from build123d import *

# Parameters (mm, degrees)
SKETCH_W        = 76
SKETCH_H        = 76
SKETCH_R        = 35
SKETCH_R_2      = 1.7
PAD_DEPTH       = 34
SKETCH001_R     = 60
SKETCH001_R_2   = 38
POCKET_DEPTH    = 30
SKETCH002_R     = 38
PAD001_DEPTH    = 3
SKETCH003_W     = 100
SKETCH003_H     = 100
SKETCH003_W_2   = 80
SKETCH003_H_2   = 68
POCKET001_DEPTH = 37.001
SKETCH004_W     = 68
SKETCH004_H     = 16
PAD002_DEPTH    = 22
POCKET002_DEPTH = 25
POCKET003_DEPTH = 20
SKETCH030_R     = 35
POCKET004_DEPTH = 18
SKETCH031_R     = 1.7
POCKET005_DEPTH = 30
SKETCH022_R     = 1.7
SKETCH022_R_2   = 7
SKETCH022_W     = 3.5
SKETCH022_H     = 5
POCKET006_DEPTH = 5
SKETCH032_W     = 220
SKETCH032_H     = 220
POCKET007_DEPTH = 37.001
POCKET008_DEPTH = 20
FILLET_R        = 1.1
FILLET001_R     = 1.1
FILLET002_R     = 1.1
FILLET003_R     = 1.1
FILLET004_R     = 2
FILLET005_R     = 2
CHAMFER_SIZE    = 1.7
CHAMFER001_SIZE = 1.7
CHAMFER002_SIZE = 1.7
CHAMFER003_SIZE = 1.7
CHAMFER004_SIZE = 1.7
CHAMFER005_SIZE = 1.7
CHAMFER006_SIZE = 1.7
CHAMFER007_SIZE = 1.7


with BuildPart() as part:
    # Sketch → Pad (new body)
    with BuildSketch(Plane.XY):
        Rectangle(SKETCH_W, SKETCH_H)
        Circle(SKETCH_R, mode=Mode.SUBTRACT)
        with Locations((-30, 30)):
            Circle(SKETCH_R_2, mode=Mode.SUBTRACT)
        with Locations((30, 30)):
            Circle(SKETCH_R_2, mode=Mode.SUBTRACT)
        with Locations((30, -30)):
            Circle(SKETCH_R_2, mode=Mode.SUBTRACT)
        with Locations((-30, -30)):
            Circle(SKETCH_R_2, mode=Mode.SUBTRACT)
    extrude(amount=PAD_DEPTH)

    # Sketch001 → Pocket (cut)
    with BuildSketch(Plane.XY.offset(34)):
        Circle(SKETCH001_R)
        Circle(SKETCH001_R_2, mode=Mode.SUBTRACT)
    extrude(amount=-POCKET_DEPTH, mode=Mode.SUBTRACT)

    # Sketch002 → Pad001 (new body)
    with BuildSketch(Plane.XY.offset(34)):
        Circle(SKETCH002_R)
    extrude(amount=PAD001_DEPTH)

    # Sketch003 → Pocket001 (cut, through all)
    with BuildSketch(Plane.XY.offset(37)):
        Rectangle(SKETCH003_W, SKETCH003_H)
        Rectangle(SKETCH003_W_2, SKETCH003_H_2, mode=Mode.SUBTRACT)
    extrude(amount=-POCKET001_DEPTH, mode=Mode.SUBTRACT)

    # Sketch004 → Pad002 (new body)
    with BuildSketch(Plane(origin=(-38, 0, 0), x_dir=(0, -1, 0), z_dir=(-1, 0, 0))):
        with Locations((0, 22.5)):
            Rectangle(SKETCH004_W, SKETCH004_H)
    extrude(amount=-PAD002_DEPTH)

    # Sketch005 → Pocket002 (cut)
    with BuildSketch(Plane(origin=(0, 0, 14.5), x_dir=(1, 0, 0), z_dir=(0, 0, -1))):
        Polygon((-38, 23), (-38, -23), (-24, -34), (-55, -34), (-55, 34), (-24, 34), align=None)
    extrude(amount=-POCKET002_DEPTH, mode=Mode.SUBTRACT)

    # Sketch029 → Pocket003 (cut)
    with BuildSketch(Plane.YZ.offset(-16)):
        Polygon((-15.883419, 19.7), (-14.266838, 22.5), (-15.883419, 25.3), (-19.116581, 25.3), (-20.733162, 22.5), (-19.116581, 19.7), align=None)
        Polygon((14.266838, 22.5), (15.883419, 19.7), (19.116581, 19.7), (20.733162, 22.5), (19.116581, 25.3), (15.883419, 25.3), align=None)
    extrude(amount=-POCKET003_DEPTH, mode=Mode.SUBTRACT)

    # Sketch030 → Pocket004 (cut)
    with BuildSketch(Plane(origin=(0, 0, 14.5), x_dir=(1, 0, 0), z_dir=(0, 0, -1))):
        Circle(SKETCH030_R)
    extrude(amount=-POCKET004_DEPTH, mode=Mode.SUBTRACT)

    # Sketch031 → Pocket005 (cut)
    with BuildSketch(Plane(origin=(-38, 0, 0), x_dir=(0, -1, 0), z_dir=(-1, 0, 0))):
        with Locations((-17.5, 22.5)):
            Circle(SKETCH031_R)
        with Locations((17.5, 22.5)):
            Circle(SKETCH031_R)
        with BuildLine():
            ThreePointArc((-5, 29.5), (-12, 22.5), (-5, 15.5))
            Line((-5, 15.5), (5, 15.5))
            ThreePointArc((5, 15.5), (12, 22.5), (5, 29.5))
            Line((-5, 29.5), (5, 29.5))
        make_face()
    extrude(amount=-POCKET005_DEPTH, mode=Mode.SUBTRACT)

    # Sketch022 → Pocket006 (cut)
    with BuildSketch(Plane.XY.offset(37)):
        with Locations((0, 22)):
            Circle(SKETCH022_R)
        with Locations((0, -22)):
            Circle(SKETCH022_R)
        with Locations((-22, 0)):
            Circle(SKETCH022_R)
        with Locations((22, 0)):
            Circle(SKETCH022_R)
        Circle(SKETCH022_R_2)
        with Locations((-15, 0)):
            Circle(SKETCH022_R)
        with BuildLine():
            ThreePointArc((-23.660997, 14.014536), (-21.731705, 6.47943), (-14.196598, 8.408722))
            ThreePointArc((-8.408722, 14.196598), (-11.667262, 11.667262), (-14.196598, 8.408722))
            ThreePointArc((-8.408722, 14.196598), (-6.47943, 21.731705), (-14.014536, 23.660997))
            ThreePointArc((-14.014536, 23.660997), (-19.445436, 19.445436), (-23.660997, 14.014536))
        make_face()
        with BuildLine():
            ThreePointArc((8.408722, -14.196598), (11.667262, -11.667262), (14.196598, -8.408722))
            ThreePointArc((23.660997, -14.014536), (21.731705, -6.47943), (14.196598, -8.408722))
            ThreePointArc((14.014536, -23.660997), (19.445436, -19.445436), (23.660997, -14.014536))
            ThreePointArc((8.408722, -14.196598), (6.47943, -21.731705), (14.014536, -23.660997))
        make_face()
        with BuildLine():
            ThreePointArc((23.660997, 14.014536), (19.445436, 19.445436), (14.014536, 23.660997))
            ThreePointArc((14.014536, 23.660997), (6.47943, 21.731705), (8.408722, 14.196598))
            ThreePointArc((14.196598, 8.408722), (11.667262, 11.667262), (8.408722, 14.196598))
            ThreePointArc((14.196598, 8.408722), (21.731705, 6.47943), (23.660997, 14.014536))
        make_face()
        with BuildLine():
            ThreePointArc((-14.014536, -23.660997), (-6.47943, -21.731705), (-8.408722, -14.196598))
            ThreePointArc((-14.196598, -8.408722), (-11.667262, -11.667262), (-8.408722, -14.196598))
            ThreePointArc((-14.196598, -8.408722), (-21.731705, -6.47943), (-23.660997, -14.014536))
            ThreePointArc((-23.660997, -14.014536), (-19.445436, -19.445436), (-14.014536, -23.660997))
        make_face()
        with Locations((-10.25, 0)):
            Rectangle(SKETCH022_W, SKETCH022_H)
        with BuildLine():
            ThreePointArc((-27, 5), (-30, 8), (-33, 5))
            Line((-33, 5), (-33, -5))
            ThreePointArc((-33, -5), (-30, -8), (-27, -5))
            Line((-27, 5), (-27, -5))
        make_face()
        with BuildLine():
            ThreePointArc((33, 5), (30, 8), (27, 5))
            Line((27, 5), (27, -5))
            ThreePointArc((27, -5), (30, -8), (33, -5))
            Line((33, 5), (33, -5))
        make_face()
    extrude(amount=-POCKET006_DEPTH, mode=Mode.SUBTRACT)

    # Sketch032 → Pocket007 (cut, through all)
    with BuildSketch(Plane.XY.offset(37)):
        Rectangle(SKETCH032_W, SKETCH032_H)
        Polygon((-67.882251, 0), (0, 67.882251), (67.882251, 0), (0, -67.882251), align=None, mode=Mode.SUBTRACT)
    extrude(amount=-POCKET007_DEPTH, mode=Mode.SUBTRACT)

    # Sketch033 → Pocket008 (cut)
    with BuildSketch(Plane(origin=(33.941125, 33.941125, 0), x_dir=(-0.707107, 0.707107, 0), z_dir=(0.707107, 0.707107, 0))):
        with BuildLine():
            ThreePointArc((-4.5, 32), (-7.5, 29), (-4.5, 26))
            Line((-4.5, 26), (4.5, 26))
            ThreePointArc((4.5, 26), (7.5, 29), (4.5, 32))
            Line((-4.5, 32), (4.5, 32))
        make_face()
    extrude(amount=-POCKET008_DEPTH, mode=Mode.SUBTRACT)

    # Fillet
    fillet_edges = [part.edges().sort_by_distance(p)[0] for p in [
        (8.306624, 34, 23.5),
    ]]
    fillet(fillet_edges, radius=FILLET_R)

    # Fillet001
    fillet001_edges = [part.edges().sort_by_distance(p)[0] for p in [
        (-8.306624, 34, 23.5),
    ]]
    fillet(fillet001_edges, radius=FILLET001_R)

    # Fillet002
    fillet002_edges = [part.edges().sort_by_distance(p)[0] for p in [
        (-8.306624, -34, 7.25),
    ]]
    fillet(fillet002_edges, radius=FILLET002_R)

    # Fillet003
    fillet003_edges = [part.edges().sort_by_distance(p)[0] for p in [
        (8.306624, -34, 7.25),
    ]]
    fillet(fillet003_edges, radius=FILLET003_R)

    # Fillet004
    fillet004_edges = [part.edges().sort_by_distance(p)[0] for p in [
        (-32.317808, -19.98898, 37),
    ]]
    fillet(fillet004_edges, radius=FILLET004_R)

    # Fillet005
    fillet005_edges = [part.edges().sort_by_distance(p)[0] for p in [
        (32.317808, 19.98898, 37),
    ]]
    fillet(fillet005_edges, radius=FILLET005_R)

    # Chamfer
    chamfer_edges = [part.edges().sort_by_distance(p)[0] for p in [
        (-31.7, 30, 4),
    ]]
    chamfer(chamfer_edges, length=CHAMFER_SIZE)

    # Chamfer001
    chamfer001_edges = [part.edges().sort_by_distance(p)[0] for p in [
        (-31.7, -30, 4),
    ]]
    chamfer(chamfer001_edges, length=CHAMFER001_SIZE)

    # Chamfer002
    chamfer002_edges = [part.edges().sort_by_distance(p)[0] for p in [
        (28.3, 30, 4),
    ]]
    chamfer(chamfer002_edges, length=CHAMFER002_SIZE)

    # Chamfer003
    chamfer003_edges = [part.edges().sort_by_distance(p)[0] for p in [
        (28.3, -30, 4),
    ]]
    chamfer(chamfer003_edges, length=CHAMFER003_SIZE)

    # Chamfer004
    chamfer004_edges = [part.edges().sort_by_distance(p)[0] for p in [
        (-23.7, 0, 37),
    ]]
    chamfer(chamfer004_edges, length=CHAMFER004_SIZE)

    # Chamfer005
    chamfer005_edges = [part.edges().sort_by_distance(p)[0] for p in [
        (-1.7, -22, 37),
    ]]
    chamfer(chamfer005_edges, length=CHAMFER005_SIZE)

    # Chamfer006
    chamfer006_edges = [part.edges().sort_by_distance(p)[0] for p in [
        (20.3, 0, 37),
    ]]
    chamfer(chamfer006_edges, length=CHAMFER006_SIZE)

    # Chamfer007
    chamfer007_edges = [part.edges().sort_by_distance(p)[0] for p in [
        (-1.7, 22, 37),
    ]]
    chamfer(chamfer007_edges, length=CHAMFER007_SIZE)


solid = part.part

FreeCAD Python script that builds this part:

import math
import FreeCAD as App
import Part
import Sketcher
from FreeCAD import Vector
Q = App.Units.Quantity


def edges_at(feature, points):
    """Names of the edges that pass closest to the given points."""
    edges = feature.Shape.Edges
    near = lambda p: min(range(len(edges)), key=lambda i: edges[i].distToShape(Part.Vertex(*p))[0])
    return sorted({f"Edge{near(p) + 1}" for p in points})

doc = App.newDocument("Part")
params = doc.addObject("Spreadsheet::Sheet", "Params")
for row, (alias, value) in enumerate([
    ("sketch1_diameter", "70 mm"),
    ("sketch1_diameter2", "3.4 mm"),
    ("sketch1_width", "76 mm"),
    ("pad1_length", "34 mm"),
    ("sketch2_diameter", "120 mm"),
    ("sketch2_diameter2", "76 mm"),
    ("pocket1_length", "30 mm"),
    ("sketch3_diameter", "76 mm"),
    ("pad2_length", "3 mm"),
    ("sketch4_width", "100 mm"),
    ("sketch4_width2", "80 mm"),
    ("sketch4_height", "68 mm"),
    ("sketch5_width", "68 mm"),
    ("sketch5_height", "16 mm"),
    ("pad3_length", "22 mm"),
    ("sketch6_width", "31 mm"),
    ("sketch6_height", "46 mm"),
    ("sketch6_height2", "68 mm"),
    ("pocket3_length", "25 mm"),
    ("pocket4_length", "20 mm"),
    ("sketch8_diameter", "70 mm"),
    ("pocket5_length", "18 mm"),
    ("sketch9_radius", "7 mm"),
    ("sketch9_diameter", "3.4 mm"),
    ("sketch9_width", "10 mm"),
    ("pocket6_length", "30 mm"),
    ("sketch10_diameter", "14 mm"),
    ("sketch10_radius", "3 mm"),
    ("sketch10_diameter2", "3.4 mm"),
    ("sketch10_radius2", "5.5 mm"),
    ("sketch10_height", "5 mm"),
    ("pocket7_length", "5 mm"),
    ("sketch11_width", "220 mm"),
    ("sketch11_length", "96 mm"),
    ("sketch12_radius", "3 mm"),
    ("sketch12_width", "9 mm"),
    ("pocket9_length", "20 mm"),
    ("fillet_radius", "1.1 mm"),
    ("fillet2_radius", "1.1 mm"),
    ("fillet3_radius", "1.1 mm"),
    ("fillet4_radius", "1.1 mm"),
    ("fillet5_radius", "2 mm"),
    ("fillet6_radius", "2 mm"),
    ("chamfer_size", "1.7 mm"),
    ("chamfer2_size", "1.7 mm"),
    ("chamfer3_size", "1.7 mm"),
    ("chamfer4_size", "1.7 mm"),
    ("chamfer5_size", "1.7 mm"),
    ("chamfer6_size", "1.7 mm"),
    ("chamfer7_size", "1.7 mm"),
    ("chamfer8_size", "1.7 mm"),
], start=1):
    params.set(f"A{row}", alias)
    params.set(f"B{row}", "=" + value)
    params.setAlias(f"B{row}", alias)

body = doc.addObject("PartDesign::Body", "Body")

sketch1 = doc.addObject("Sketcher::SketchObject", "Sketch")
body.addObject(sketch1)
sketch1.AttachmentSupport = (doc.XY_Plane, [""])
sketch1.MapMode = "FlatFace"
sketch1.addGeometry([
    Part.LineSegment(Vector(-38, 38, 0), Vector(-38, -38, 0)),
    Part.LineSegment(Vector(-38, -38, 0), Vector(38, -38, 0)),
    Part.LineSegment(Vector(38, -38, 0), Vector(38, 38, 0)),
    Part.LineSegment(Vector(38, 38, 0), Vector(-38, 38, 0)),
    Part.Circle(Vector(-30, -30, 0), Vector(0, 0, 1), 1.7),
    Part.Circle(Vector(30, -30, 0), Vector(0, 0, 1), 1.7),
    Part.Circle(Vector(-30, 30, 0), Vector(0, 0, 1), 1.7),
    Part.Circle(Vector(0, 0, 0), Vector(0, 0, 1), 35),
    Part.Circle(Vector(30, 30, 0), Vector(0, 0, 1), 1.7),
], False)
sketch1.addConstraint([
    Sketcher.Constraint("Coincident", 0, 2, 1, 1),
    Sketcher.Constraint("Coincident", 1, 2, 2, 1),
    Sketcher.Constraint("Coincident", 2, 2, 3, 1),
    Sketcher.Constraint("Coincident", 3, 2, 0, 1),
    Sketcher.Constraint("Vertical", 0),
    Sketcher.Constraint("Horizontal", 1),
    Sketcher.Constraint("Vertical", 2),
    Sketcher.Constraint("Horizontal", 3),
    Sketcher.Constraint("Coincident", 7, 3, -1, 1),
    Sketcher.Constraint("Equal", 4, 5),
    Sketcher.Constraint("Equal", 5, 6),
    Sketcher.Constraint("Equal", 6, 8),
    Sketcher.Constraint("Symmetric", 5, 3, 6, 3, -1, 1),
    Sketcher.Constraint("Symmetric", 4, 3, 8, 3, -1, 1),
    Sketcher.Constraint("Symmetric", 0, 2, 2, 2, -1, 1),
    Sketcher.Constraint("Symmetric", 4, 3, 5, 3, -2),
    Sketcher.Constraint("Equal", 3, 0),
    Sketcher.Constraint("Diameter", 7, Q("70 mm")),
    Sketcher.Constraint("Diameter", 4, Q("3.4 mm")),
    Sketcher.Constraint("DistanceX", 1, 1, 1, 2, Q("76 mm")),
    Sketcher.Constraint("DistanceX", 4, 3, -1, 1, Q("30 mm")),
    Sketcher.Constraint("DistanceY", 4, 3, -1, 1, Q("30 mm")),
])
sketch1.setExpression("Constraints[17]", "Params.sketch1_diameter")
sketch1.setExpression("Constraints[18]", "Params.sketch1_diameter2")
sketch1.setExpression("Constraints[19]", "Params.sketch1_width")
pad1 = doc.addObject("PartDesign::Pad", "Pad")
body.addObject(pad1)
pad1.Profile = sketch1
pad1.setExpression("Length", "Params.pad1_length")

sketch2 = doc.addObject("Sketcher::SketchObject", "Sketch001")
body.addObject(sketch2)
sketch2.AttachmentSupport = (doc.XY_Plane, [""])
sketch2.MapMode = "FlatFace"
sketch2.AttachmentOffset = App.Placement(Vector(0, 0, 34), App.Rotation())
sketch2.addGeometry([
    Part.Circle(Vector(0, 0, 0), Vector(0, 0, 1), 60),
    Part.Circle(Vector(0, 0, 0), Vector(0, 0, 1), 38),
], False)
sketch2.addConstraint([
    Sketcher.Constraint("Coincident", 0, 3, -1, 1),
    Sketcher.Constraint("Coincident", 1, 3, -1, 1),
    Sketcher.Constraint("Diameter", 0, Q("120 mm")),
    Sketcher.Constraint("Diameter", 1, Q("76 mm")),
])
sketch2.setExpression("Constraints[2]", "Params.sketch2_diameter")
sketch2.setExpression("Constraints[3]", "Params.sketch2_diameter2")
pocket1 = doc.addObject("PartDesign::Pocket", "Pocket")
body.addObject(pocket1)
pocket1.Profile = sketch2
pocket1.setExpression("Length", "Params.pocket1_length")

sketch3 = doc.addObject("Sketcher::SketchObject", "Sketch002")
body.addObject(sketch3)
sketch3.AttachmentSupport = (doc.XY_Plane, [""])
sketch3.MapMode = "FlatFace"
sketch3.AttachmentOffset = App.Placement(Vector(0, 0, 34), App.Rotation())
sketch3.addGeometry(Part.Circle(Vector(0, 0, 0), Vector(0, 0, 1), 38), False)
sketch3.addConstraint([
    Sketcher.Constraint("Coincident", 0, 3, -1, 1),
    Sketcher.Constraint("Diameter", 0, Q("76 mm")),
])
sketch3.setExpression("Constraints[1]", "Params.sketch3_diameter")
pad2 = doc.addObject("PartDesign::Pad", "Pad001")
body.addObject(pad2)
pad2.Profile = sketch3
pad2.setExpression("Length", "Params.pad2_length")

sketch4 = doc.addObject("Sketcher::SketchObject", "Sketch003")
body.addObject(sketch4)
sketch4.AttachmentSupport = (doc.XY_Plane, [""])
sketch4.MapMode = "FlatFace"
sketch4.AttachmentOffset = App.Placement(Vector(0, 0, 37), App.Rotation())
sketch4.addGeometry([
    Part.LineSegment(Vector(-50, 50, 0), Vector(-50, -50, 0)),
    Part.LineSegment(Vector(-50, -50, 0), Vector(50, -50, 0)),
    Part.LineSegment(Vector(50, -50, 0), Vector(50, 50, 0)),
    Part.LineSegment(Vector(50, 50, 0), Vector(-50, 50, 0)),
    Part.LineSegment(Vector(40, -34, 0), Vector(-40, -34, 0)),
    Part.LineSegment(Vector(-40, -34, 0), Vector(-40, 34, 0)),
    Part.LineSegment(Vector(-40, 34, 0), Vector(40, 34, 0)),
    Part.LineSegment(Vector(40, 34, 0), Vector(40, -34, 0)),
], False)
sketch4.addConstraint([
    Sketcher.Constraint("Coincident", 0, 2, 1, 1),
    Sketcher.Constraint("Coincident", 1, 2, 2, 1),
    Sketcher.Constraint("Coincident", 2, 2, 3, 1),
    Sketcher.Constraint("Coincident", 3, 2, 0, 1),
    Sketcher.Constraint("Coincident", 4, 2, 5, 1),
    Sketcher.Constraint("Coincident", 5, 2, 6, 1),
    Sketcher.Constraint("Coincident", 6, 2, 7, 1),
    Sketcher.Constraint("Coincident", 7, 2, 4, 1),
    Sketcher.Constraint("Vertical", 0),
    Sketcher.Constraint("Horizontal", 1),
    Sketcher.Constraint("Vertical", 2),
    Sketcher.Constraint("Horizontal", 3),
    Sketcher.Constraint("Horizontal", 4),
    Sketcher.Constraint("Vertical", 5),
    Sketcher.Constraint("Horizontal", 6),
    Sketcher.Constraint("Vertical", 7),
    Sketcher.Constraint("Symmetric", 0, 2, 2, 2, -1, 1),
    Sketcher.Constraint("Symmetric", 4, 2, 6, 2, -1, 1),
    Sketcher.Constraint("Equal", 3, 0),
    Sketcher.Constraint("DistanceX", 1, 1, 1, 2, Q("100 mm")),
    Sketcher.Constraint("DistanceX", 4, 2, 4, 1, Q("80 mm")),
    Sketcher.Constraint("DistanceY", 5, 1, 5, 2, Q("68 mm")),
])
sketch4.setExpression("Constraints[19]", "Params.sketch4_width")
sketch4.setExpression("Constraints[20]", "Params.sketch4_width2")
sketch4.setExpression("Constraints[21]", "Params.sketch4_height")
pocket2 = doc.addObject("PartDesign::Pocket", "Pocket001")
body.addObject(pocket2)
pocket2.Profile = sketch4
pocket2.Type = "ThroughAll"

sketch5 = doc.addObject("Sketcher::SketchObject", "Sketch004")
body.addObject(sketch5)
sketch5.AttachmentSupport = (doc.YZ_Plane, [""])
sketch5.MapMode = "FlatFace"
sketch5.AttachmentOffset = App.Placement(Vector(0, 0, -38), App.Rotation())
sketch5.addGeometry([
    Part.LineSegment(Vector(34, 30, 0), Vector(34, 14, 0)),
    Part.LineSegment(Vector(34, 14, 0), Vector(-34, 14, 0)),
    Part.LineSegment(Vector(-34, 14, 0), Vector(-34, 30, 0)),
    Part.LineSegment(Vector(-34, 30, 0), Vector(34, 30, 0)),
], False)
sketch5.addConstraint([
    Sketcher.Constraint("Coincident", 0, 2, 1, 1),
    Sketcher.Constraint("Coincident", 1, 2, 2, 1),
    Sketcher.Constraint("Coincident", 2, 2, 3, 1),
    Sketcher.Constraint("Coincident", 3, 2, 0, 1),
    Sketcher.Constraint("Vertical", 0),
    Sketcher.Constraint("Horizontal", 1),
    Sketcher.Constraint("Vertical", 2),
    Sketcher.Constraint("Horizontal", 3),
    Sketcher.Constraint("DistanceX", 1, 2, 1, 1, Q("68 mm")),
    Sketcher.Constraint("DistanceY", 0, 2, 0, 1, Q("16 mm")),
    Sketcher.Constraint("DistanceX", -1, 1, 0, 2, Q("34 mm")),
    Sketcher.Constraint("DistanceY", -1, 1, 0, 2, Q("14.5 mm")),
])
sketch5.setExpression("Constraints[8]", "Params.sketch5_width")
sketch5.setExpression("Constraints[9]", "Params.sketch5_height")
pad3 = doc.addObject("PartDesign::Pad", "Pad002")
body.addObject(pad3)
pad3.Profile = sketch5
pad3.setExpression("Length", "Params.pad3_length")

sketch6 = doc.addObject("Sketcher::SketchObject", "Sketch005")
body.addObject(sketch6)
sketch6.AttachmentSupport = (doc.XY_Plane, [""])
sketch6.MapMode = "FlatFace"
sketch6.AttachmentOffset = App.Placement(Vector(0, 0, 14.5), App.Rotation())
sketch6.addGeometry([
    Part.LineSegment(Vector(-38, 23, 0), Vector(-38, -23, 0)),
    Part.LineSegment(Vector(-38, -23, 0), Vector(-24, -34, 0)),
    Part.LineSegment(Vector(-24, -34, 0), Vector(-55, -34, 0)),
    Part.LineSegment(Vector(-55, -34, 0), Vector(-55, 34, 0)),
    Part.LineSegment(Vector(-55, 34, 0), Vector(-24, 34, 0)),
    Part.LineSegment(Vector(-24, 34, 0), Vector(-38, 23, 0)),
], False)
sketch6.addConstraint([
    Sketcher.Constraint("Coincident", 0, 2, 1, 1),
    Sketcher.Constraint("Coincident", 1, 2, 2, 1),
    Sketcher.Constraint("Coincident", 2, 2, 3, 1),
    Sketcher.Constraint("Coincident", 3, 2, 4, 1),
    Sketcher.Constraint("Coincident", 4, 2, 5, 1),
    Sketcher.Constraint("Coincident", 5, 2, 0, 1),
    Sketcher.Constraint("Vertical", 0),
    Sketcher.Constraint("Horizontal", 2),
    Sketcher.Constraint("Vertical", 3),
    Sketcher.Constraint("Horizontal", 4),
    Sketcher.Constraint("Symmetric", 1, 2, 4, 2, -1),
    Sketcher.Constraint("Equal", 1, 5),
    Sketcher.Constraint("DistanceX", 2, 2, 2, 1, Q("31 mm")),
    Sketcher.Constraint("DistanceY", 0, 2, 0, 1, Q("46 mm")),
    Sketcher.Constraint("DistanceY", 3, 1, 3, 2, Q("68 mm")),
    Sketcher.Constraint("DistanceX", 0, 2, -1, 1, Q("38 mm")),
    Sketcher.Constraint("DistanceX", 1, 2, -1, 1, Q("24 mm")),
])
sketch6.setExpression("Constraints[12]", "Params.sketch6_width")
sketch6.setExpression("Constraints[13]", "Params.sketch6_height")
sketch6.setExpression("Constraints[14]", "Params.sketch6_height2")
pocket3 = doc.addObject("PartDesign::Pocket", "Pocket002")
body.addObject(pocket3)
pocket3.Profile = sketch6
pocket3.setExpression("Length", "Params.pocket3_length")
pocket3.Reversed = True

sketch7 = doc.addObject("Sketcher::SketchObject", "Sketch006")
body.addObject(sketch7)
sketch7.AttachmentSupport = (doc.YZ_Plane, [""])
sketch7.MapMode = "FlatFace"
sketch7.AttachmentOffset = App.Placement(Vector(0, 0, -16), App.Rotation())
sketch7.addGeometry([
    Part.LineSegment(Vector(-15.9, 19.7, 0), Vector(-14.3, 22.5, 0)),
    Part.LineSegment(Vector(-14.3, 22.5, 0), Vector(-15.9, 25.3, 0)),
    Part.LineSegment(Vector(-15.9, 25.3, 0), Vector(-19.1, 25.3, 0)),
    Part.LineSegment(Vector(-19.1, 25.3, 0), Vector(-20.7, 22.5, 0)),
    Part.LineSegment(Vector(-20.7, 22.5, 0), Vector(-19.1, 19.7, 0)),
    Part.LineSegment(Vector(-19.1, 19.7, 0), Vector(-15.9, 19.7, 0)),
    Part.LineSegment(Vector(14.3, 22.5, 0), Vector(15.9, 19.7, 0)),
    Part.LineSegment(Vector(15.9, 19.7, 0), Vector(19.1, 19.7, 0)),
    Part.LineSegment(Vector(19.1, 19.7, 0), Vector(20.7, 22.5, 0)),
    Part.LineSegment(Vector(20.7, 22.5, 0), Vector(19.1, 25.3, 0)),
    Part.LineSegment(Vector(19.1, 25.3, 0), Vector(15.9, 25.3, 0)),
    Part.LineSegment(Vector(15.9, 25.3, 0), Vector(14.3, 22.5, 0)),
], False)
sketch7.addConstraint([
    Sketcher.Constraint("Coincident", 0, 2, 1, 1),
    Sketcher.Constraint("Coincident", 1, 2, 2, 1),
    Sketcher.Constraint("Coincident", 2, 2, 3, 1),
    Sketcher.Constraint("Coincident", 3, 2, 4, 1),
    Sketcher.Constraint("Coincident", 4, 2, 5, 1),
    Sketcher.Constraint("Coincident", 5, 2, 0, 1),
    Sketcher.Constraint("Coincident", 6, 2, 7, 1),
    Sketcher.Constraint("Coincident", 7, 2, 8, 1),
    Sketcher.Constraint("Coincident", 8, 2, 9, 1),
    Sketcher.Constraint("Coincident", 9, 2, 10, 1),
    Sketcher.Constraint("Coincident", 10, 2, 11, 1),
    Sketcher.Constraint("Coincident", 11, 2, 6, 1),
    Sketcher.Constraint("Horizontal", 2),
    Sketcher.Constraint("Horizontal", 5),
    Sketcher.Constraint("Horizontal", 7),
    Sketcher.Constraint("Horizontal", 10),
    Sketcher.Constraint("Symmetric", 5, 2, 6, 2, -2),
    Sketcher.Constraint("Symmetric", 3, 2, 8, 2, -2),
    Sketcher.Constraint("Symmetric", 2, 2, 9, 2, -2),
    Sketcher.Constraint("Symmetric", 0, 2, 11, 2, -2),
    Sketcher.Constraint("Parallel", 0, 3),
    Sketcher.Constraint("Parallel", 1, 4),
    Sketcher.Constraint("Parallel", 4, 6),
    Sketcher.Constraint("Parallel", 3, 8),
    Sketcher.Constraint("Parallel", 8, 11),
    Sketcher.Constraint("Horizontal", 0, 2, 3, 2),
    Sketcher.Constraint("Vertical", 2, 2, 4, 2),
    Sketcher.Constraint("Angle", 0, Q("59.999996 deg")),
    Sketcher.Constraint("DistanceX", 4, 2, 6, 2, Q("35 mm")),
    Sketcher.Constraint("DistanceY", -1, 1, 0, 2, Q("22.5 mm")),
    Sketcher.Constraint("DistanceY", -1, 1, 1, 2, Q("25.3 mm")),
    Sketcher.Constraint("DistanceX", 2, 2, 2, 1, Q("3.233162 mm")),
])
pocket4 = doc.addObject("PartDesign::Pocket", "Pocket003")
body.addObject(pocket4)
pocket4.Profile = sketch7
pocket4.setExpression("Length", "Params.pocket4_length")

sketch8 = doc.addObject("Sketcher::SketchObject", "Sketch007")
body.addObject(sketch8)
sketch8.AttachmentSupport = (doc.XY_Plane, [""])
sketch8.MapMode = "FlatFace"
sketch8.AttachmentOffset = App.Placement(Vector(0, 0, 14.5), App.Rotation())
sketch8.addGeometry(Part.Circle(Vector(0, 0, 0), Vector(0, 0, 1), 35), False)
sketch8.addConstraint([
    Sketcher.Constraint("Coincident", 0, 3, -1, 1),
    Sketcher.Constraint("Diameter", 0, Q("70 mm")),
])
sketch8.setExpression("Constraints[1]", "Params.sketch8_diameter")
pocket5 = doc.addObject("PartDesign::Pocket", "Pocket004")
body.addObject(pocket5)
pocket5.Profile = sketch8
pocket5.setExpression("Length", "Params.pocket5_length")
pocket5.Reversed = True

sketch9 = doc.addObject("Sketcher::SketchObject", "Sketch008")
body.addObject(sketch9)
sketch9.AttachmentSupport = (doc.YZ_Plane, [""])
sketch9.MapMode = "FlatFace"
sketch9.AttachmentOffset = App.Placement(Vector(0, 0, -38), App.Rotation())
sketch9.addGeometry([
    Part.Circle(Vector(17.5, 22.5, 0), Vector(0, 0, 1), 1.7),
    Part.Circle(Vector(-17.5, 22.5, 0), Vector(0, 0, 1), 1.7),
    Part.ArcOfCircle(Part.Circle(Vector(5, 22.5, 0), Vector(0, 0, 1), 7), math.radians(-90), math.radians(90)),
    Part.LineSegment(Vector(5, 15.5, 0), Vector(-5, 15.5, 0)),
    Part.ArcOfCircle(Part.Circle(Vector(-5, 22.5, 0), Vector(0, 0, 1), 7), math.radians(90), math.radians(270)),
    Part.LineSegment(Vector(-5, 29.5, 0), Vector(5, 29.5, 0)),
], False)
sketch9.addConstraint([
    Sketcher.Constraint("Tangent", 2, 1, 3, 1),
    Sketcher.Constraint("Tangent", 3, 2, 4, 2),
    Sketcher.Constraint("Tangent", 4, 1, 5, 1),
    Sketcher.Constraint("Tangent", 5, 2, 2, 2),
    Sketcher.Constraint("Horizontal", 3),
    Sketcher.Constraint("Horizontal", 5),
    Sketcher.Constraint("Equal", 0, 1),
    Sketcher.Constraint("Symmetric", 0, 3, 1, 3, -2),
    Sketcher.Constraint("Horizontal", 1, 3, 2, 3),
    Sketcher.Constraint("Radius", 2, Q("7 mm")),
    Sketcher.Constraint("Diameter", 0, Q("3.4 mm")),
    Sketcher.Constraint("DistanceX", 3, 2, 3, 1, Q("10 mm")),
    Sketcher.Constraint("DistanceX", -1, 1, 2, 3, Q("5 mm")),
    Sketcher.Constraint("DistanceX", 1, 3, 0, 3, Q("35 mm")),
    Sketcher.Constraint("DistanceY", -1, 1, 0, 3, Q("22.5 mm")),
])
sketch9.setExpression("Constraints[9]", "Params.sketch9_radius")
sketch9.setExpression("Constraints[10]", "Params.sketch9_diameter")
sketch9.setExpression("Constraints[11]", "Params.sketch9_width")
pocket6 = doc.addObject("PartDesign::Pocket", "Pocket005")
body.addObject(pocket6)
pocket6.Profile = sketch9
pocket6.setExpression("Length", "Params.pocket6_length")
pocket6.Reversed = True

sketch10 = doc.addObject("Sketcher::SketchObject", "Sketch009")
body.addObject(sketch10)
sketch10.AttachmentSupport = (doc.XY_Plane, [""])
sketch10.MapMode = "FlatFace"
sketch10.AttachmentOffset = App.Placement(Vector(0, 0, 37), App.Rotation())
sketch10.addGeometry([
    Part.Circle(Vector(0, 22, 0), Vector(0, 0, 1), 1.7),
    Part.Circle(Vector(0, -22, 0), Vector(0, 0, 1), 1.7),
    Part.Circle(Vector(-22, 0, 0), Vector(0, 0, 1), 1.7),
    Part.Circle(Vector(22, 0, 0), Vector(0, 0, 1), 1.7),
    Part.Circle(Vector(0, 0, 0), Vector(0, 0, 1), 7),
    Part.Circle(Vector(-15, 0, 0), Vector(0, 0, 1), 1.7),
    Part.ArcOfCircle(Part.Circle(Vector(-18.9, 11.2, 0), Vector(0, 0, 1), 5.5), math.radians(149), math.radians(329)),
    Part.ArcOfCircle(Part.Circle(Vector(0, 0, 0), Vector(0, 0, 1), 16.5), math.radians(121), math.radians(149)),
    Part.ArcOfCircle(Part.Circle(Vector(-11.2, 18.9, 0), Vector(0, 0, 1), 5.5), math.radians(-59), math.radians(121)),
    Part.ArcOfCircle(Part.Circle(Vector(0, 0, 0), Vector(0, 0, 1), 27.5), math.radians(121), math.radians(149)),
    Part.ArcOfCircle(Part.Circle(Vector(0, 0, 0), Vector(0, 0, 1), 16.5), math.radians(-59), math.radians(-31)),
    Part.ArcOfCircle(Part.Circle(Vector(11.2, -18.9, 0), Vector(0, 0, 1), 5.5), math.radians(121), math.radians(301)),
    Part.ArcOfCircle(Part.Circle(Vector(0, 0, 0), Vector(0, 0, 1), 27.5), math.radians(-59), math.radians(-31)),
    Part.ArcOfCircle(Part.Circle(Vector(18.9, -11.2, 0), Vector(0, 0, 1), 5.5), math.radians(-31), math.radians(149)),
    Part.ArcOfCircle(Part.Circle(Vector(0, 0, 0), Vector(0, 0, 1), 27.5), math.radians(31), math.radians(59)),
    Part.ArcOfCircle(Part.Circle(Vector(11.2, 18.9, 0), Vector(0, 0, 1), 5.5), math.radians(59), math.radians(239)),
    Part.ArcOfCircle(Part.Circle(Vector(0, 0, 0), Vector(0, 0, 1), 16.5), math.radians(31), math.radians(59)),
    Part.ArcOfCircle(Part.Circle(Vector(18.9, 11.2, 0), Vector(0, 0, 1), 5.5), math.radians(-149), math.radians(31)),
    Part.ArcOfCircle(Part.Circle(Vector(-11.2, -18.9, 0), Vector(0, 0, 1), 5.5), math.radians(-121), math.radians(59)),
    Part.ArcOfCircle(Part.Circle(Vector(0, 0, 0), Vector(0, 0, 1), 16.5), math.radians(-149), math.radians(-121)),
    Part.ArcOfCircle(Part.Circle(Vector(-18.9, -11.2, 0), Vector(0, 0, 1), 5.5), math.radians(31), math.radians(211)),
    Part.ArcOfCircle(Part.Circle(Vector(0, 0, 0), Vector(0, 0, 1), 27.5), math.radians(-149), math.radians(-121)),
    Part.LineSegment(Vector(-12, 2.5, 0), Vector(-12, -2.5, 0)),
    Part.LineSegment(Vector(-12, -2.5, 0), Vector(-8.5, -2.5, 0)),
    Part.LineSegment(Vector(-8.5, -2.5, 0), Vector(-8.5, 2.5, 0)),
    Part.LineSegment(Vector(-8.5, 2.5, 0), Vector(-12, 2.5, 0)),
    Part.ArcOfCircle(Part.Circle(Vector(-30, 5, 0), Vector(0, 0, 1), 3), math.radians(0), math.radians(180)),
    Part.LineSegment(Vector(-33, 5, 0), Vector(-33, -5, 0)),
    Part.ArcOfCircle(Part.Circle(Vector(-30, -5, 0), Vector(0, 0, 1), 3), math.radians(180), math.radians(360)),
    Part.LineSegment(Vector(-27, -5, 0), Vector(-27, 5, 0)),
    Part.ArcOfCircle(Part.Circle(Vector(30, 5, 0), Vector(0, 0, 1), 3), math.radians(0), math.radians(180)),
    Part.LineSegment(Vector(27, 5, 0), Vector(27, -5, 0)),
    Part.ArcOfCircle(Part.Circle(Vector(30, -5, 0), Vector(0, 0, 1), 3), math.radians(180), math.radians(360)),
    Part.LineSegment(Vector(33, -5, 0), Vector(33, 5, 0)),
], False)
sketch10.addConstraint([
    Sketcher.Constraint("Tangent", 6, 2, 7, 2),
    Sketcher.Constraint("Tangent", 7, 1, 8, 1),
    Sketcher.Constraint("Tangent", 8, 2, 9, 1),
    Sketcher.Constraint("Tangent", 9, 2, 6, 1),
    Sketcher.Constraint("Tangent", 10, 1, 11, 1),
    Sketcher.Constraint("Tangent", 11, 2, 12, 1),
    Sketcher.Constraint("Tangent", 12, 2, 13, 1),
    Sketcher.Constraint("Tangent", 13, 2, 10, 2),
    Sketcher.Constraint("Tangent", 14, 2, 15, 1),
    Sketcher.Constraint("Tangent", 15, 2, 16, 2),
    Sketcher.Constraint("Tangent", 16, 1, 17, 1),
    Sketcher.Constraint("Tangent", 17, 2, 14, 1),
    Sketcher.Constraint("Tangent", 18, 2, 19, 2),
    Sketcher.Constraint("Tangent", 19, 1, 20, 1),
    Sketcher.Constraint("Tangent", 20, 2, 21, 1),
    Sketcher.Constraint("Tangent", 21, 2, 18, 1),
    Sketcher.Constraint("Coincident", 22, 2, 23, 1),
    Sketcher.Constraint("Coincident", 23, 2, 24, 1),
    Sketcher.Constraint("Coincident", 24, 2, 25, 1),
    Sketcher.Constraint("Coincident", 25, 2, 22, 1),
    Sketcher.Constraint("Tangent", 26, 2, 27, 1),
    Sketcher.Constraint("Tangent", 27, 2, 28, 1),
    Sketcher.Constraint("Tangent", 28, 2, 29, 1),
    Sketcher.Constraint("Tangent", 29, 2, 26, 1),
    Sketcher.Constraint("Tangent", 30, 2, 31, 1),
    Sketcher.Constraint("Tangent", 31, 2, 32, 1),
    Sketcher.Constraint("Tangent", 32, 2, 33, 1),
    Sketcher.Constraint("Tangent", 33, 2, 30, 1),
    Sketcher.Constraint("Vertical", 22),
    Sketcher.Constraint("Horizontal", 23),
    Sketcher.Constraint("Vertical", 24),
    Sketcher.Constraint("Horizontal", 25),
    Sketcher.Constraint("Vertical", 27),
    Sketcher.Constraint("Vertical", 29),
    Sketcher.Constraint("Vertical", 31),
    Sketcher.Constraint("Vertical", 33),
    Sketcher.Constraint("Coincident", 4, 3, -1, 1),
    Sketcher.Constraint("Coincident", 7, 3, -1, 1),
    Sketcher.Constraint("Coincident", 10, 3, -1, 1),
    Sketcher.Constraint("Coincident", 16, 3, -1, 1),
    Sketcher.Constraint("Coincident", 19, 3, -1, 1),
    Sketcher.Constraint("Equal", 0, 1),
    Sketcher.Constraint("Equal", 1, 2),
    Sketcher.Constraint("Equal", 2, 3),
    Sketcher.Constraint("Equal", 3, 5),
    Sketcher.Constraint("Equal", 6, 8),
    Sketcher.Constraint("Equal", 7, 10),
    Sketcher.Constraint("Equal", 8, 11),
    Sketcher.Constraint("Equal", 9, 12),
    Sketcher.Constraint("Equal", 11, 13),
    Sketcher.Constraint("Equal", 12, 14),
    Sketcher.Constraint("Equal", 13, 15),
    Sketcher.Constraint("Equal", 10, 16),
    Sketcher.Constraint("Equal", 15, 17),
    Sketcher.Constraint("Equal", 17, 18),
    Sketcher.Constraint("Equal", 16, 19),
    Sketcher.Constraint("Equal", 18, 20),
    Sketcher.Constraint("Equal", 14, 21),
    Sketcher.Constraint("Equal", 28, 30),
    Sketcher.Constraint("Symmetric", 0, 3, 1, 3, -1, 1),
    Sketcher.Constraint("Symmetric", 2, 3, 3, 3, -1, 1),
    Sketcher.Constraint("Symmetric", 28, 3, 30, 3, -1, 1),
    Sketcher.Constraint("PointOnObject", 0, 3, -2),
    Sketcher.Constraint("PointOnObject", 2, 3, -1),
    Sketcher.Constraint("PointOnObject", 5, 3, -1),
    Sketcher.Constraint("Horizontal", 8, 3, 15, 3),
    Sketcher.Constraint("Horizontal", 6, 3, 17, 3),
    Sketcher.Constraint("Horizontal", 11, 3, 18, 3),
    Sketcher.Constraint("Horizontal", 13, 3, 20, 3),
    Sketcher.Constraint("Horizontal", 26, 3, 30, 3),
    Sketcher.Constraint("Horizontal", 28, 3, 32, 3),
    Sketcher.Constraint("Vertical", 11, 3, 15, 3),
    Sketcher.Constraint("Vertical", 13, 3, 17, 3),
    Sketcher.Constraint("Diameter", 4, Q("14 mm")),
    Sketcher.Constraint("Radius", 26, Q("3 mm")),
    Sketcher.Constraint("Diameter", 0, Q("3.4 mm")),
    Sketcher.Constraint("Radius", 6, Q("5.5 mm")),
    Sketcher.Constraint("DistanceY", 22, 2, 22, 1, Q("5 mm")),
    Sketcher.Constraint("DistanceY", 27, 2, 27, 1, Q("10 mm")),
    Sketcher.Constraint("DistanceX", 23, 1, 23, 2, Q("3.5 mm")),
    Sketcher.Constraint("DistanceY", -1, 1, 0, 3, Q("22 mm")),
    Sketcher.Constraint("DistanceX", 2, 3, -1, 1, Q("22 mm")),
    Sketcher.Constraint("DistanceX", 5, 3, -1, 1, Q("15 mm")),
    Sketcher.Constraint("DistanceX", 26, 3, -1, 1, Q("30 mm")),
    Sketcher.Constraint("DistanceX", 22, 2, -1, 1, Q("12 mm")),
    Sketcher.Constraint("DistanceY", 22, 2, -1, 1, Q("2.5 mm")),
    Sketcher.Constraint("Radius", 9, Q("27.50002 mm")),
    Sketcher.Constraint("Radius", 7, Q("16.499996 mm")),
    Sketcher.Constraint("DistanceX", 6, 2, -1, 1, Q("14.196598 mm")),
    Sketcher.Constraint("DistanceY", -1, 1, 15, 2, Q("14.196598 mm")),
])
sketch10.setExpression("Constraints[73]", "Params.sketch10_diameter")
sketch10.setExpression("Constraints[74]", "Params.sketch10_radius")
sketch10.setExpression("Constraints[75]", "Params.sketch10_diameter2")
sketch10.setExpression("Constraints[76]", "Params.sketch10_radius2")
sketch10.setExpression("Constraints[77]", "Params.sketch10_height")
pocket7 = doc.addObject("PartDesign::Pocket", "Pocket006")
body.addObject(pocket7)
pocket7.Profile = sketch10
pocket7.setExpression("Length", "Params.pocket7_length")

sketch11 = doc.addObject("Sketcher::SketchObject", "Sketch010")
body.addObject(sketch11)
sketch11.AttachmentSupport = (doc.XY_Plane, [""])
sketch11.MapMode = "FlatFace"
sketch11.AttachmentOffset = App.Placement(Vector(0, 0, 37), App.Rotation())
sketch11.addGeometry([
    Part.LineSegment(Vector(-110, 110, 0), Vector(-110, -110, 0)),
    Part.LineSegment(Vector(-110, -110, 0), Vector(110, -110, 0)),
    Part.LineSegment(Vector(110, -110, 0), Vector(110, 110, 0)),
    Part.LineSegment(Vector(110, 110, 0), Vector(-110, 110, 0)),
    Part.LineSegment(Vector(0, -68, 0), Vector(-68, 0, 0)),
    Part.LineSegment(Vector(-68, 0, 0), Vector(0, 68, 0)),
    Part.LineSegment(Vector(0, 68, 0), Vector(68, 0, 0)),
    Part.LineSegment(Vector(68, 0, 0), Vector(0, -68, 0)),
], False)
sketch11.addConstraint([
    Sketcher.Constraint("Coincident", 0, 2, 1, 1),
    Sketcher.Constraint("Coincident", 1, 2, 2, 1),
    Sketcher.Constraint("Coincident", 2, 2, 3, 1),
    Sketcher.Constraint("Coincident", 3, 2, 0, 1),
    Sketcher.Constraint("Coincident", 4, 2, 5, 1),
    Sketcher.Constraint("Coincident", 5, 2, 6, 1),
    Sketcher.Constraint("Coincident", 6, 2, 7, 1),
    Sketcher.Constraint("Coincident", 7, 2, 4, 1),
    Sketcher.Constraint("Vertical", 0),
    Sketcher.Constraint("Horizontal", 1),
    Sketcher.Constraint("Vertical", 2),
    Sketcher.Constraint("Horizontal", 3),
    Sketcher.Constraint("Symmetric", 0, 2, 2, 2, -1, 1),
    Sketcher.Constraint("Symmetric", 4, 2, 6, 2, -1, 1),
    Sketcher.Constraint("Symmetric", 5, 2, 7, 2, -1, 1),
    Sketcher.Constraint("PointOnObject", 4, 2, -1),
    Sketcher.Constraint("PointOnObject", 5, 2, -2),
    Sketcher.Constraint("Perpendicular", 4, 5),
    Sketcher.Constraint("Equal", 3, 0),
    Sketcher.Constraint("DistanceX", 1, 1, 1, 2, Q("220 mm")),
    Sketcher.Constraint("Distance", 4, Q("96 mm")),
])
sketch11.setExpression("Constraints[19]", "Params.sketch11_width")
sketch11.setExpression("Constraints[20]", "Params.sketch11_length")
pocket8 = doc.addObject("PartDesign::Pocket", "Pocket007")
body.addObject(pocket8)
pocket8.Profile = sketch11
pocket8.Type = "ThroughAll"

sketch12 = doc.addObject("Sketcher::SketchObject", "Sketch011")
body.addObject(sketch12)
sketch12.Placement = App.Placement(Vector(33.941125, 33.941125, 0), App.Rotation(Vector(-0.707106781, 0.707106781, 0), Vector(0, 0, 0.999999999), Vector(0.707106781, 0.707106781, 0), "ZXY"))
sketch12.addGeometry([
    Part.ArcOfCircle(Part.Circle(Vector(-4.5, 29, 0), Vector(0, 0, 1), 3), math.radians(90), math.radians(270)),
    Part.LineSegment(Vector(-4.5, 26, 0), Vector(4.5, 26, 0)),
    Part.ArcOfCircle(Part.Circle(Vector(4.5, 29, 0), Vector(0, 0, 1), 3), math.radians(-90), math.radians(90)),
    Part.LineSegment(Vector(4.5, 32, 0), Vector(-4.5, 32, 0)),
], False)
sketch12.addConstraint([
    Sketcher.Constraint("Tangent", 0, 2, 1, 1),
    Sketcher.Constraint("Tangent", 1, 2, 2, 1),
    Sketcher.Constraint("Tangent", 2, 2, 3, 1),
    Sketcher.Constraint("Tangent", 3, 2, 0, 1),
    Sketcher.Constraint("Horizontal", 1),
    Sketcher.Constraint("Horizontal", 3),
    Sketcher.Constraint("Radius", 0, Q("3 mm")),
    Sketcher.Constraint("DistanceX", 1, 1, 1, 2, Q("9 mm")),
    Sketcher.Constraint("DistanceY", -1, 1, 0, 3, Q("29 mm")),
    Sketcher.Constraint("DistanceX", 0, 3, -1, 1, Q("4.5 mm")),
])
sketch12.setExpression("Constraints[6]", "Params.sketch12_radius")
sketch12.setExpression("Constraints[7]", "Params.sketch12_width")
pocket9 = doc.addObject("PartDesign::Pocket", "Pocket008")
body.addObject(pocket9)
pocket9.Profile = sketch12
pocket9.setExpression("Length", "Params.pocket9_length")
doc.recompute()

fillet = doc.addObject("PartDesign::Fillet", "Fillet")
body.addObject(fillet)
fillet.Base = (pocket9, edges_at(pocket9, [(8.307, 34, 17)]))
fillet.setExpression("Radius", "Params.fillet_radius")
doc.recompute()

fillet2 = doc.addObject("PartDesign::Fillet", "Fillet001")
body.addObject(fillet2)
fillet2.Base = (fillet, edges_at(fillet, [(-8.307, 34, 17)]))
fillet2.setExpression("Radius", "Params.fillet2_radius")
doc.recompute()

fillet3 = doc.addObject("PartDesign::Fillet", "Fillet002")
body.addObject(fillet3)
fillet3.Base = (fillet2, edges_at(fillet2, [(-8.307, -34, 17)]))
fillet3.setExpression("Radius", "Params.fillet3_radius")
doc.recompute()

fillet4 = doc.addObject("PartDesign::Fillet", "Fillet003")
body.addObject(fillet4)
fillet4.Base = (fillet3, edges_at(fillet3, [(8.307, -34, 17)]))
fillet4.setExpression("Radius", "Params.fillet4_radius")
doc.recompute()

fillet5 = doc.addObject("PartDesign::Fillet", "Fillet004")
body.addObject(fillet5)
fillet5.Base = (fillet4, edges_at(fillet4, [(-38, 0, 37)]))
fillet5.setExpression("Radius", "Params.fillet5_radius")
doc.recompute()

fillet6 = doc.addObject("PartDesign::Fillet", "Fillet005")
body.addObject(fillet6)
fillet6.Base = (fillet5, edges_at(fillet5, [(38, 0, 37)]))
fillet6.setExpression("Radius", "Params.fillet6_radius")
doc.recompute()

chamfer = doc.addObject("PartDesign::Chamfer", "Chamfer")
body.addObject(chamfer)
chamfer.Base = (fillet6, edges_at(fillet6, [(-31.7, 30, 4)]))
chamfer.setExpression("Size", "Params.chamfer_size")
doc.recompute()

chamfer2 = doc.addObject("PartDesign::Chamfer", "Chamfer001")
body.addObject(chamfer2)
chamfer2.Base = (chamfer, edges_at(chamfer, [(-31.7, -30, 4)]))
chamfer2.setExpression("Size", "Params.chamfer2_size")
doc.recompute()

chamfer3 = doc.addObject("PartDesign::Chamfer", "Chamfer002")
body.addObject(chamfer3)
chamfer3.Base = (chamfer2, edges_at(chamfer2, [(28.3, 30, 4)]))
chamfer3.setExpression("Size", "Params.chamfer3_size")
doc.recompute()

chamfer4 = doc.addObject("PartDesign::Chamfer", "Chamfer003")
body.addObject(chamfer4)
chamfer4.Base = (chamfer3, edges_at(chamfer3, [(28.3, -30, 4)]))
chamfer4.setExpression("Size", "Params.chamfer4_size")
doc.recompute()

chamfer5 = doc.addObject("PartDesign::Chamfer", "Chamfer004")
body.addObject(chamfer5)
chamfer5.Base = (chamfer4, edges_at(chamfer4, [(-23.7, 0, 37)]))
chamfer5.setExpression("Size", "Params.chamfer5_size")
doc.recompute()

chamfer6 = doc.addObject("PartDesign::Chamfer", "Chamfer005")
body.addObject(chamfer6)
chamfer6.Base = (chamfer5, edges_at(chamfer5, [(-1.7, -22, 37)]))
chamfer6.setExpression("Size", "Params.chamfer6_size")
doc.recompute()

chamfer7 = doc.addObject("PartDesign::Chamfer", "Chamfer006")
body.addObject(chamfer7)
chamfer7.Base = (chamfer6, edges_at(chamfer6, [(20.3, 0, 37)]))
chamfer7.setExpression("Size", "Params.chamfer7_size")
doc.recompute()

chamfer8 = doc.addObject("PartDesign::Chamfer", "Chamfer007")
body.addObject(chamfer8)
chamfer8.Base = (chamfer7, edges_at(chamfer7, [(-1.7, 22, 37)]))
chamfer8.setExpression("Size", "Params.chamfer8_size")

doc.recompute()
